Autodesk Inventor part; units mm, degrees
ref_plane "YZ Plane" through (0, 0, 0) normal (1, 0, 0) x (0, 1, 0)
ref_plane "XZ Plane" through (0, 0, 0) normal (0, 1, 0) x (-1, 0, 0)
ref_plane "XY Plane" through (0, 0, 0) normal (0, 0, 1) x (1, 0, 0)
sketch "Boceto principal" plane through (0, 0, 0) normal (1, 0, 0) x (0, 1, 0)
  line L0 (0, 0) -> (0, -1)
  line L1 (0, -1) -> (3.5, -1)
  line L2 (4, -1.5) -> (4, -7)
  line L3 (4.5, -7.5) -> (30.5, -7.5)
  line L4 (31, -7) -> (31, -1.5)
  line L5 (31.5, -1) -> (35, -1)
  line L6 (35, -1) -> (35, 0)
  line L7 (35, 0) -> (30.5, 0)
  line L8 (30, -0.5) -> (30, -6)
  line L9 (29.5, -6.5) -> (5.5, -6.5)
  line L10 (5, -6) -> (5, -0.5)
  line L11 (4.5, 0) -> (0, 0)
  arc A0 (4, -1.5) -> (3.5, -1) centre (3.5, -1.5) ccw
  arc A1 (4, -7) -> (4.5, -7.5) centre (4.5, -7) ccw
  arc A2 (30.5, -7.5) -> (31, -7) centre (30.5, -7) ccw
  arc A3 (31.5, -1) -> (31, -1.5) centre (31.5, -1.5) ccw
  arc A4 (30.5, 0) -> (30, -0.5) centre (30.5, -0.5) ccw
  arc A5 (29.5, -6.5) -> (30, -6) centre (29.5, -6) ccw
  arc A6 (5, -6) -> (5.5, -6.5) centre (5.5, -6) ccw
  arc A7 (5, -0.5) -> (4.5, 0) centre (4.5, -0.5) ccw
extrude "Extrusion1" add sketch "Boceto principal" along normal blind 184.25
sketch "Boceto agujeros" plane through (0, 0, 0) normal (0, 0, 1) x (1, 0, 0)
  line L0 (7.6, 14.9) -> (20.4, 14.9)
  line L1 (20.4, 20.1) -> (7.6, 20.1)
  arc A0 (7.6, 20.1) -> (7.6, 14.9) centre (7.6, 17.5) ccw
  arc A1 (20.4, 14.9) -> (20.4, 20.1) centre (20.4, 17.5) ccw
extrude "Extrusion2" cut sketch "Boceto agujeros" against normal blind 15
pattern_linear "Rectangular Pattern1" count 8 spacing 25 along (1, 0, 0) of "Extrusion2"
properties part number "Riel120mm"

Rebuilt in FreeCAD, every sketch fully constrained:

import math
import FreeCAD as App
import Part
import Sketcher

doc = App.newDocument("Part")
params = doc.addObject("Spreadsheet::Sheet", "Params")
for row, (alias, value) in enumerate([
    ("sketch1_radius", "0.5 mm"),
    ("sketch1_width", "26 mm"),
    ("sketch1_height", "1 mm"),
    ("sketch1_width2", "4.5 mm"),
    ("sketch1_height2", "5.5 mm"),
    ("pad1_length", "184.25 mm"),
    ("sketch2_radius", "2.6 mm"),
    ("sketch2_width", "12.8 mm"),
    ("pocket1_length", "15 mm"),
    ("linearpattern_pitch", "25 mm"),
], start=1):
    params.set(f"A{row}", alias)
    params.set(f"B{row}", "=" + value)
    params.setAlias(f"B{row}", alias)

body = doc.addObject("PartDesign::Body", "Body")

# Sketch on YZ plane
sketch1 = body.newObject("Sketcher::SketchObject", "Sketch")
sketch1.AttachmentSupport = (doc.getObject("YZ_Plane"), [""])
sketch1.MapMode = "FlatFace"
sketch1.addGeometry([
    Part.LineSegment(App.Vector(4.5, 0, 0), App.Vector(0, 0, 0)),  # 0
    Part.LineSegment(App.Vector(0, 0, 0), App.Vector(0, -1, 0)),  # 1
    Part.LineSegment(App.Vector(0, -1, 0), App.Vector(3.5, -1, 0)),  # 2
    Part.ArcOfCircle(Part.Circle(App.Vector(3.5, -1.5, 0), App.Vector(0, 0, 1), 0.5), math.radians(0), math.radians(90)),  # 3
    Part.LineSegment(App.Vector(4, -1.5, 0), App.Vector(4, -7, 0)),  # 4
    Part.ArcOfCircle(Part.Circle(App.Vector(4.5, -7, 0), App.Vector(0, 0, 1), 0.5), math.radians(180), math.radians(270)),  # 5
    Part.LineSegment(App.Vector(4.5, -7.5, 0), App.Vector(30.5, -7.5, 0)),  # 6
    Part.ArcOfCircle(Part.Circle(App.Vector(30.5, -7, 0), App.Vector(0, 0, 1), 0.5), math.radians(-90), math.radians(0)),  # 7
    Part.LineSegment(App.Vector(31, -7, 0), App.Vector(31, -1.5, 0)),  # 8
    Part.ArcOfCircle(Part.Circle(App.Vector(31.5, -1.5, 0), App.Vector(0, 0, 1), 0.5), math.radians(90), math.radians(180)),  # 9
    Part.LineSegment(App.Vector(31.5, -1, 0), App.Vector(35, -1, 0)),  # 10
    Part.LineSegment(App.Vector(35, -1, 0), App.Vector(35, 0, 0)),  # 11
    Part.LineSegment(App.Vector(35, 0, 0), App.Vector(30.5, 0, 0)),  # 12
    Part.ArcOfCircle(Part.Circle(App.Vector(30.5, -0.5, 0), App.Vector(0, 0, 1), 0.5), math.radians(90), math.radians(180)),  # 13
    Part.LineSegment(App.Vector(30, -0.5, 0), App.Vector(30, -6, 0)),  # 14
    Part.ArcOfCircle(Part.Circle(App.Vector(29.5, -6, 0), App.Vector(0, 0, 1), 0.5), math.radians(-90), math.radians(0)),  # 15
    Part.LineSegment(App.Vector(29.5, -6.5, 0), App.Vector(5.5, -6.5, 0)),  # 16
    Part.ArcOfCircle(Part.Circle(App.Vector(5.5, -6, 0), App.Vector(0, 0, 1), 0.5), math.radians(180), math.radians(270)),  # 17
    Part.LineSegment(App.Vector(5, -6, 0), App.Vector(5, -0.5, 0)),  # 18
    Part.ArcOfCircle(Part.Circle(App.Vector(4.5, -0.5, 0), App.Vector(0, 0, 1), 0.5), math.radians(0), math.radians(90)),  # 19
], False)
sketch1.addConstraint([
    Sketcher.Constraint("Coincident", 0, 2, 1, 1),
    Sketcher.Constraint("Coincident", 1, 2, 2, 1),
    Sketcher.Constraint("Tangent", 2, 2, 3, 2),
    Sketcher.Constraint("Tangent", 3, 1, 4, 1),
    Sketcher.Constraint("Tangent", 4, 2, 5, 1),
    Sketcher.Constraint("Tangent", 5, 2, 6, 1),
    Sketcher.Constraint("Tangent", 6, 2, 7, 1),
    Sketcher.Constraint("Tangent", 7, 2, 8, 1),
    Sketcher.Constraint("Tangent", 8, 2, 9, 2),
    Sketcher.Constraint("Tangent", 9, 1, 10, 1),
    Sketcher.Constraint("Coincident", 10, 2, 11, 1),
    Sketcher.Constraint("Coincident", 11, 2, 12, 1),
    Sketcher.Constraint("Tangent", 12, 2, 13, 1),
    Sketcher.Constraint("Tangent", 13, 2, 14, 1),
    Sketcher.Constraint("Tangent", 14, 2, 15, 2),
    Sketcher.Constraint("Tangent", 15, 1, 16, 1),
    Sketcher.Constraint("Tangent", 16, 2, 17, 2),
    Sketcher.Constraint("Tangent", 17, 1, 18, 1),
    Sketcher.Constraint("Tangent", 18, 2, 19, 1),
    Sketcher.Constraint("Tangent", 19, 2, 0, 1),
    Sketcher.Constraint("Horizontal", 0),
    Sketcher.Constraint("Vertical", 1),
    Sketcher.Constraint("Horizontal", 2),
    Sketcher.Constraint("Vertical", 4),
    Sketcher.Constraint("Horizontal", 6),
    Sketcher.Constraint("Vertical", 8),
    Sketcher.Constraint("Horizontal", 10),
    Sketcher.Constraint("Vertical", 11),
    Sketcher.Constraint("Horizontal", 12),
    Sketcher.Constraint("Vertical", 14),
    Sketcher.Constraint("Horizontal", 16),
    Sketcher.Constraint("Vertical", 18),
    Sketcher.Constraint("Coincident", 0, 2, -1, 1),
    Sketcher.Constraint("Equal", 3, 5),
    Sketcher.Constraint("Equal", 5, 7),
    Sketcher.Constraint("Equal", 7, 9),
    Sketcher.Constraint("Equal", 9, 13),
    Sketcher.Constraint("Equal", 13, 15),
    Sketcher.Constraint("Equal", 15, 17),
    Sketcher.Constraint("Equal", 17, 19),
    Sketcher.Constraint("PointOnObject", 11, 2, -1),
    Sketcher.Constraint("Horizontal", 3, 3, 9, 3),
    Sketcher.Constraint("Vertical", 7, 3, 13, 3),
    Sketcher.Constraint("Vertical", 5, 3, 19, 3),
    Sketcher.Constraint("Equal", 2, 10),
    Sketcher.Constraint("Equal", 8, 14),
    Sketcher.Constraint("Radius", 3, 0.5),
    Sketcher.Constraint("DistanceX", 6, 1, 6, 2, 26.0),
    Sketcher.Constraint("DistanceY", 1, 2, 1, 1, 1.0),
    Sketcher.Constraint("DistanceX", 0, 2, 0, 1, 4.5),
    Sketcher.Constraint("DistanceY", 4, 2, 4, 1, 5.5),
])
sketch1.setExpression("Constraints[46]", "Params.sketch1_radius")
sketch1.setExpression("Constraints[47]", "Params.sketch1_width")
sketch1.setExpression("Constraints[48]", "Params.sketch1_height")
sketch1.setExpression("Constraints[49]", "Params.sketch1_width2")
sketch1.setExpression("Constraints[50]", "Params.sketch1_height2")
pad1 = body.newObject("PartDesign::Pad", "Pad")
pad1.Profile = sketch1
pad1.setExpression("Length", "Params.pad1_length")

# Sketch on XY plane
sketch2 = body.newObject("Sketcher::SketchObject", "Sketch001")
sketch2.AttachmentSupport = (doc.getObject("XY_Plane"), [""])
sketch2.MapMode = "FlatFace"
sketch2.addGeometry([
    Part.ArcOfCircle(Part.Circle(App.Vector(7.6, 17.5, 0), App.Vector(0, 0, 1), 2.6), math.radians(90), math.radians(270)),
    Part.LineSegment(App.Vector(7.6, 14.9, 0), App.Vector(20.4, 14.9, 0)),
    Part.ArcOfCircle(Part.Circle(App.Vector(20.4, 17.5, 0), App.Vector(0, 0, 1), 2.6), math.radians(-90), math.radians(90)),
    Part.LineSegment(App.Vector(20.4, 20.1, 0), App.Vector(7.6, 20.1, 0)),
], False)
sketch2.addConstraint([
    Sketcher.Constraint("Tangent", 0, 2, 1, 1),
    Sketcher.Constraint("Tangent", 1, 2, 2, 1),
    Sketcher.Constraint("Tangent", 2, 2, 3, 1),
    Sketcher.Constraint("Tangent", 3, 2, 0, 1),
    Sketcher.Constraint("Horizontal", 1),
    Sketcher.Constraint("Horizontal", 3),
    Sketcher.Constraint("Radius", 0, 2.6),
    Sketcher.Constraint("DistanceX", 1, 1, 1, 2, 12.8),
    Sketcher.Constraint("DistanceX", -1, 1, 0, 3, 7.6),
    Sketcher.Constraint("DistanceY", -1, 1, 0, 3, 17.5),
])
sketch2.setExpression("Constraints[6]", "Params.sketch2_radius")
sketch2.setExpression("Constraints[7]", "Params.sketch2_width")
pocket1 = body.newObject("PartDesign::Pocket", "Pocket")
pocket1.Profile = sketch2
pocket1.setExpression("Length", "Params.pocket1_length")
doc.recompute()

linearpattern = body.newObject("PartDesign::LinearPattern", "LinearPattern")
linearpattern.Originals = [pocket1]
linearpattern.Direction = (doc.getObject("X_Axis"), [""])
linearpattern.Mode = "offset"
linearpattern.setExpression("Offset", "Params.linearpattern_pitch")
linearpattern.Occurrences = 8
body.Tip = linearpattern

doc.recompute()
